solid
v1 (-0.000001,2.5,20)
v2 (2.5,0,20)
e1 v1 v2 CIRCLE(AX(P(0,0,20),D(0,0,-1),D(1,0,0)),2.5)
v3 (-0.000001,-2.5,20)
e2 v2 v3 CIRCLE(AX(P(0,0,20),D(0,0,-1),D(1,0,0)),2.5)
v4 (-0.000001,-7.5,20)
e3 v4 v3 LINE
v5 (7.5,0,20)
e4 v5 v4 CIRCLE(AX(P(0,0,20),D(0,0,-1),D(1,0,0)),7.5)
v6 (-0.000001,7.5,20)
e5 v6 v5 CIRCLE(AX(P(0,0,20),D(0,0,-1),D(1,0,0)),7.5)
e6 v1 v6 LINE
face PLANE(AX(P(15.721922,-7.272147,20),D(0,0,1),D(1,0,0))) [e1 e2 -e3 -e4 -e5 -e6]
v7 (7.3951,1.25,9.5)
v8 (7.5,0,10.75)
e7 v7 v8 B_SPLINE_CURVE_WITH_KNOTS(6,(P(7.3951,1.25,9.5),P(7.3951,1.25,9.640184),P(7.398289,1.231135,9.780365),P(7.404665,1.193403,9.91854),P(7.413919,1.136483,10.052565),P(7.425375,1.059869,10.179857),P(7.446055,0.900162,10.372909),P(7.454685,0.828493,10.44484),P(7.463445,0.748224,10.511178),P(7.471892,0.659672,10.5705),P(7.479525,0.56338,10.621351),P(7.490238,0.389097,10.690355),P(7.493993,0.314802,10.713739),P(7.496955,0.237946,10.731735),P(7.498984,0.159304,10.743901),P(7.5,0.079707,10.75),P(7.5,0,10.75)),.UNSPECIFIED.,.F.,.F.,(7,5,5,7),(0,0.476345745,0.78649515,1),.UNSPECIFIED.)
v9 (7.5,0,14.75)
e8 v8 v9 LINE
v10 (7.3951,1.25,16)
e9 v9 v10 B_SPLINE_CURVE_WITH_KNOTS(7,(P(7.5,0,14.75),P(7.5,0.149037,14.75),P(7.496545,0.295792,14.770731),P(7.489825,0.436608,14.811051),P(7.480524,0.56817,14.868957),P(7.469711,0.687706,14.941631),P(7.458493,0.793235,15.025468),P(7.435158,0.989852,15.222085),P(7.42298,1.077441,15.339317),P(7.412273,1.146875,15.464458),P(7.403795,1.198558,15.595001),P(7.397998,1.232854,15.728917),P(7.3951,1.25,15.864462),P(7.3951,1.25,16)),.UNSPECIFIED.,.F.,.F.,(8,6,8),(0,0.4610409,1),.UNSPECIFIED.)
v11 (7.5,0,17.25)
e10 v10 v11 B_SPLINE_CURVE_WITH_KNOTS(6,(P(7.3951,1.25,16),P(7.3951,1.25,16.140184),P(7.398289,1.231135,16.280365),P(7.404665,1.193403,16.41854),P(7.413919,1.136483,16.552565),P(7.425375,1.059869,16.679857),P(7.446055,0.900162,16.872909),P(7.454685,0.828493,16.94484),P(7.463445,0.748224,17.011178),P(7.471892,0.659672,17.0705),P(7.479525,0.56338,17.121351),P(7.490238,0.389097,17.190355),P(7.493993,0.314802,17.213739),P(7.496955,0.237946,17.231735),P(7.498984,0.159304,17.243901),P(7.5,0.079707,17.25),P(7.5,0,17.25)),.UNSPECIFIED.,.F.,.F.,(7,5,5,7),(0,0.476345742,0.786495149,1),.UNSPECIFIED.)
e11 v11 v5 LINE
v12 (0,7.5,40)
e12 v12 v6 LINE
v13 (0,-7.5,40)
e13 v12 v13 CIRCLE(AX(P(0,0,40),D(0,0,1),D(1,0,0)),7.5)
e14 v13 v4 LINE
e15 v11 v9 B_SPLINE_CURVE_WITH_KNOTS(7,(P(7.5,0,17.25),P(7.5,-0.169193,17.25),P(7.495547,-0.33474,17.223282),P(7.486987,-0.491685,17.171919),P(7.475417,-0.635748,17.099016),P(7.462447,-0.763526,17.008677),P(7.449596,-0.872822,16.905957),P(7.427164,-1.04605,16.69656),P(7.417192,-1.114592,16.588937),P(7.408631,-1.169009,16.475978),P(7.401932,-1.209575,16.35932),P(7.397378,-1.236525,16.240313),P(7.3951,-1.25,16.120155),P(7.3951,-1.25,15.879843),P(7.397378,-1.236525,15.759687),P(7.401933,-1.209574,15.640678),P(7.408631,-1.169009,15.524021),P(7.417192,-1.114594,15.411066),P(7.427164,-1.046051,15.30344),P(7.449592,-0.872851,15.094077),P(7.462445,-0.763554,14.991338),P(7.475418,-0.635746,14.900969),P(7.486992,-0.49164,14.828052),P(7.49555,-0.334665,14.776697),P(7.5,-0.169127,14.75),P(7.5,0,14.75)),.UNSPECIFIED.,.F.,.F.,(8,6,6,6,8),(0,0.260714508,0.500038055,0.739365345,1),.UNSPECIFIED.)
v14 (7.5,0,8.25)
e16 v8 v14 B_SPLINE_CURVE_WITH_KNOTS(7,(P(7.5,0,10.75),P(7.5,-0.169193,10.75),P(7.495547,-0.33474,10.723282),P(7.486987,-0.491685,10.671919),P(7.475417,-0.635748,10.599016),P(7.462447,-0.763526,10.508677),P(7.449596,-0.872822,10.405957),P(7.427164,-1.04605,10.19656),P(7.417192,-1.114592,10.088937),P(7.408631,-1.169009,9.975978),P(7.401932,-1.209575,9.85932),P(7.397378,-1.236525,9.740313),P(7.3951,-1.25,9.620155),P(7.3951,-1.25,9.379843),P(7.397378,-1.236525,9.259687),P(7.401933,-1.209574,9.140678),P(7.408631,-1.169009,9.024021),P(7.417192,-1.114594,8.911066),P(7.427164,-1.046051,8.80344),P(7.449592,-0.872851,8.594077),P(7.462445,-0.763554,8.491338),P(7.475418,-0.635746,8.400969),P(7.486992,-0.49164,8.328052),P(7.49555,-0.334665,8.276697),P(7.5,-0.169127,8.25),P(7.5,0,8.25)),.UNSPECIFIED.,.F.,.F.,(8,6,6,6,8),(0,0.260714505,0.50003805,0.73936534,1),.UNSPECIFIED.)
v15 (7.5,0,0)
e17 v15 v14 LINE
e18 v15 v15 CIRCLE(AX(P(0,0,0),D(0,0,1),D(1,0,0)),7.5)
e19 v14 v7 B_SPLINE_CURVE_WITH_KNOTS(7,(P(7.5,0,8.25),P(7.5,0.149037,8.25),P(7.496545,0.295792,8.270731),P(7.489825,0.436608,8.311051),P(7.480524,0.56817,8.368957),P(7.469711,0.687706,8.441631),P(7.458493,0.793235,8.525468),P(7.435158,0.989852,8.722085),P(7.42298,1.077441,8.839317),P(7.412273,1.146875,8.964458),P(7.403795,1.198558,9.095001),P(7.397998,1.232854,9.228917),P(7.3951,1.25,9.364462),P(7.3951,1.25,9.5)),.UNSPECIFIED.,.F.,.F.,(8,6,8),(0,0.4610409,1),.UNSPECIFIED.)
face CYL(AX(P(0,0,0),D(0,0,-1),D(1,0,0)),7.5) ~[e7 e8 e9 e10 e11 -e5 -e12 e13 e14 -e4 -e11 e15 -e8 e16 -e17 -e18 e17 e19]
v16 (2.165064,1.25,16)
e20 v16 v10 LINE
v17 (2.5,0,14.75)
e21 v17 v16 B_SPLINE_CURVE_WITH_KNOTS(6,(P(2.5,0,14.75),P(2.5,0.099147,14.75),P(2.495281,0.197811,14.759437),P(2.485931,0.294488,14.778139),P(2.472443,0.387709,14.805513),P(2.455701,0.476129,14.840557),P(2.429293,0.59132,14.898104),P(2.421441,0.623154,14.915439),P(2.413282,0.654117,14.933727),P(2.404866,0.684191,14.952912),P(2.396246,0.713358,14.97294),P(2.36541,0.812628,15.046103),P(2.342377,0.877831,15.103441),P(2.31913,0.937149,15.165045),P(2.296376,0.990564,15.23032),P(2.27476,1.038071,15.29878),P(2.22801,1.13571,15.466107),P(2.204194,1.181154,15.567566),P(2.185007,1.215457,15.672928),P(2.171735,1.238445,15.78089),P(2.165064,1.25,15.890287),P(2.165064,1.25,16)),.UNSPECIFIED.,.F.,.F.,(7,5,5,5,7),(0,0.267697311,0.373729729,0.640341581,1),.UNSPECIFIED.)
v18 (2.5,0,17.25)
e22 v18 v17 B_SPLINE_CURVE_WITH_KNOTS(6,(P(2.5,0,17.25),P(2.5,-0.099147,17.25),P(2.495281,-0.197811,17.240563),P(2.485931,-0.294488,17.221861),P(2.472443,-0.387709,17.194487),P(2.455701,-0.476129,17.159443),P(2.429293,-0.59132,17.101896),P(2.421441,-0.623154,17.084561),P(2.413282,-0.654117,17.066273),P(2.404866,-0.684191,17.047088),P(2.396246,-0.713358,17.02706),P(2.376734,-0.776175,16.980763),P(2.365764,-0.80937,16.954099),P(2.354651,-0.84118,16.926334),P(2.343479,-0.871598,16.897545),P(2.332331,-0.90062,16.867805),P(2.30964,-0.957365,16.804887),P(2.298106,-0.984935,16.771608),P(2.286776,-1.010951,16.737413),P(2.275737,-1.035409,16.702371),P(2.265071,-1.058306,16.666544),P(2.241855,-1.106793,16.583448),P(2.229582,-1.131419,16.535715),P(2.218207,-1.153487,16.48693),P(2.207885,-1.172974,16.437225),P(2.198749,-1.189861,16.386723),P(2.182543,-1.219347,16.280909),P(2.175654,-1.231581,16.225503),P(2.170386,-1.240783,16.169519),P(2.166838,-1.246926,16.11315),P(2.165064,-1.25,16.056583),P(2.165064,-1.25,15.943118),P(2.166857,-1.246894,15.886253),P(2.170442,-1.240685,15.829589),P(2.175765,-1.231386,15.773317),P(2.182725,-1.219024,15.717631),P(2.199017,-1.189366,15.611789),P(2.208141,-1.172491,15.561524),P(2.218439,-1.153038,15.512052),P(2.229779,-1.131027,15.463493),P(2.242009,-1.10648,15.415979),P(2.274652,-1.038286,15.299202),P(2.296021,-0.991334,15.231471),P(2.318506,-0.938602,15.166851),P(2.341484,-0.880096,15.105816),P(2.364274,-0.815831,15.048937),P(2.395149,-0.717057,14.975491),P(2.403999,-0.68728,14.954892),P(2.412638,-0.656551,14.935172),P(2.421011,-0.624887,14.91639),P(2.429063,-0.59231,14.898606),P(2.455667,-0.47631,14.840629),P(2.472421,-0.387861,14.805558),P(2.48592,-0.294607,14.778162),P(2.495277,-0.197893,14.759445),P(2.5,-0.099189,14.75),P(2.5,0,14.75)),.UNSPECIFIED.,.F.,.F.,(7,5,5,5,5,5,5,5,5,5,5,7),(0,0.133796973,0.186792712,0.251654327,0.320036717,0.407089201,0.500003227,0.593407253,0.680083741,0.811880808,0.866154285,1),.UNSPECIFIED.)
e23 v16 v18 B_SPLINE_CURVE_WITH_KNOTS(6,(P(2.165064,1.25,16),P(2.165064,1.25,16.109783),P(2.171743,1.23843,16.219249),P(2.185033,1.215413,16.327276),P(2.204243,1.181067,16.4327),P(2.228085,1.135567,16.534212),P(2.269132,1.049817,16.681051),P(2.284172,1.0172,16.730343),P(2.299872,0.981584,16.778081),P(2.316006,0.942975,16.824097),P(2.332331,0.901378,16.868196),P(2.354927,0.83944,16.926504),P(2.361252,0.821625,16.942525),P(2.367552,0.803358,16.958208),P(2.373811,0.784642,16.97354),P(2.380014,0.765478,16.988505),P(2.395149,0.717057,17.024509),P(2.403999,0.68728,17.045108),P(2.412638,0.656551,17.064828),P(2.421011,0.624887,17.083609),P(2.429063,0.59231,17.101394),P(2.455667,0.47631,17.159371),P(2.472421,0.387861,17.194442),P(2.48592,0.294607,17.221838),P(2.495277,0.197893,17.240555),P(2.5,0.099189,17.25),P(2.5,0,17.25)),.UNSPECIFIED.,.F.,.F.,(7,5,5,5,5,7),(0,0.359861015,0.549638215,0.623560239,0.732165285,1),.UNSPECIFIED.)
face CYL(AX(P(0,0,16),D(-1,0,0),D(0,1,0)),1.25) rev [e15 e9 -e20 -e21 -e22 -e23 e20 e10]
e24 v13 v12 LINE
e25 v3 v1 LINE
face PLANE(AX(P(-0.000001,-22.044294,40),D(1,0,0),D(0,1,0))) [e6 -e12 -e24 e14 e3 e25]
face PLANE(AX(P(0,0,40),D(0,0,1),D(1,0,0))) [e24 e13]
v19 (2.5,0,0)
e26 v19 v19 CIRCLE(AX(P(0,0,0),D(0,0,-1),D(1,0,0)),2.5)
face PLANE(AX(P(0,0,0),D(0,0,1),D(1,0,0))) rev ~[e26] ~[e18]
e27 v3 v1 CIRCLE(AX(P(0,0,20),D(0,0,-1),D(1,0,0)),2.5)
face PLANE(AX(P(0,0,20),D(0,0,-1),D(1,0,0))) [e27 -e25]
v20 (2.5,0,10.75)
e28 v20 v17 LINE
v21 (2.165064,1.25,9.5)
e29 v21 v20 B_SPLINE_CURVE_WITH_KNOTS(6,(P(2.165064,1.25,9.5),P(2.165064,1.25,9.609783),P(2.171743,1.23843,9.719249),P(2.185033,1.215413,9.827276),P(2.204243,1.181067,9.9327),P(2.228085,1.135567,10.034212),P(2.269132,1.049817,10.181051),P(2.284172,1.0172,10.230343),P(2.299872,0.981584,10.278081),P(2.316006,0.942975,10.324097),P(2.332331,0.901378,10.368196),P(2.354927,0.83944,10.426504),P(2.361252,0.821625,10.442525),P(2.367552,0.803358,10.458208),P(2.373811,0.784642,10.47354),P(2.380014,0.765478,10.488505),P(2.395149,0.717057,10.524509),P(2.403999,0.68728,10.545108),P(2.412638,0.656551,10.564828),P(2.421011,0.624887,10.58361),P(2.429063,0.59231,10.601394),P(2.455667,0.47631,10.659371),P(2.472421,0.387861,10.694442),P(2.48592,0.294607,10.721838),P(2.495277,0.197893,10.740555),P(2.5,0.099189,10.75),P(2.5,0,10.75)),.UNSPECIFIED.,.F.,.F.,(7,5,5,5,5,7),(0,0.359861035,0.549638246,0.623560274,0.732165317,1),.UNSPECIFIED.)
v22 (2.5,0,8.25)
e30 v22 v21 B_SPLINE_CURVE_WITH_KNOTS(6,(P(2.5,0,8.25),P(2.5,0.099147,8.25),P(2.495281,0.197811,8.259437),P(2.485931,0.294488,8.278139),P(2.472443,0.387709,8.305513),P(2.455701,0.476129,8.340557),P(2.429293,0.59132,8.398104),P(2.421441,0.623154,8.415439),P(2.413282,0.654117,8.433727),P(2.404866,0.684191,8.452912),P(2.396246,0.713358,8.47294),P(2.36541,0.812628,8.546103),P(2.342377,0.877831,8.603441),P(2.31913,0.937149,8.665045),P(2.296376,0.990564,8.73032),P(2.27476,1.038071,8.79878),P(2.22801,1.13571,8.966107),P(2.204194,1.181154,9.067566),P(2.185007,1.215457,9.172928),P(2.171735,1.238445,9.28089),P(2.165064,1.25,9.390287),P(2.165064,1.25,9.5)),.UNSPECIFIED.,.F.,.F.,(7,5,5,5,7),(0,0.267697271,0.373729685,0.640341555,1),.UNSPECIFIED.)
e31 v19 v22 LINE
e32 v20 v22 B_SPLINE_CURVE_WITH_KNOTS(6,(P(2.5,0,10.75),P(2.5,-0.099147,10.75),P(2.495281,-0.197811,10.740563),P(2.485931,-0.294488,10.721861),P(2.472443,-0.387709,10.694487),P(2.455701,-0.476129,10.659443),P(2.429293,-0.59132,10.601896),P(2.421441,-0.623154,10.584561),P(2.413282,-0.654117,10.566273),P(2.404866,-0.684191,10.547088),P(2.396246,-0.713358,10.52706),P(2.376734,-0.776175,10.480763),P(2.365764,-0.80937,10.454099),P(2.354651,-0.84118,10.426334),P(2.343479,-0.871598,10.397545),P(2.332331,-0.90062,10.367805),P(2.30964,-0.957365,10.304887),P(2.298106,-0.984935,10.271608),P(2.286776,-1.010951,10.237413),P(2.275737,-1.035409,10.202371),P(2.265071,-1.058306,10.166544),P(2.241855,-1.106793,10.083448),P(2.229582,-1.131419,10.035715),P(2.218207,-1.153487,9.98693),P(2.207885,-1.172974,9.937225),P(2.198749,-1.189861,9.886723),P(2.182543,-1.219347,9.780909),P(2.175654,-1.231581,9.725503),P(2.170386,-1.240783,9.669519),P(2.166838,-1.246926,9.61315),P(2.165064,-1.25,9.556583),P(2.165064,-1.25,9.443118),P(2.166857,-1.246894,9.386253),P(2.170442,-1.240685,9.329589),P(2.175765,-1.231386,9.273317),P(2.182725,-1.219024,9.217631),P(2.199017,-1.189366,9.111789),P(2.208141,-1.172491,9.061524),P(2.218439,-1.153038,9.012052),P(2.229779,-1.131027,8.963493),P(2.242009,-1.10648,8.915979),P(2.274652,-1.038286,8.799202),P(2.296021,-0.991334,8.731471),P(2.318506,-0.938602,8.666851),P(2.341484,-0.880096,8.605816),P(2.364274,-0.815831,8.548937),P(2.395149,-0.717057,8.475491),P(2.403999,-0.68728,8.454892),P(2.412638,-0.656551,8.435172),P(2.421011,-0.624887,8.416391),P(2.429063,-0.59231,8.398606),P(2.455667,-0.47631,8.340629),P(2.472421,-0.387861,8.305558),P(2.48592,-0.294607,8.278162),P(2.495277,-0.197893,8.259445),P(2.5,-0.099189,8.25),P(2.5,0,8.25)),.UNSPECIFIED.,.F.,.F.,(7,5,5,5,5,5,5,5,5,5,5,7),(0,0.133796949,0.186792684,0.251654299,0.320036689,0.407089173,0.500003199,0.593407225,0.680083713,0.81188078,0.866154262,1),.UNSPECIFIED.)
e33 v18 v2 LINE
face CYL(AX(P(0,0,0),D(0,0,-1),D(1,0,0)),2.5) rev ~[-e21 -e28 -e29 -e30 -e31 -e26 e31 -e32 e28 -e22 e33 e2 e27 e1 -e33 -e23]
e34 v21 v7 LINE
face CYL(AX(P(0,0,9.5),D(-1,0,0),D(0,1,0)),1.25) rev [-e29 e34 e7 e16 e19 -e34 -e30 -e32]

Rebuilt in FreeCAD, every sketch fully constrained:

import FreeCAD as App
import Part
import Sketcher
from FreeCAD import Vector
Q = App.Units.Quantity


def add_polygon(sketch, points):
    """Adds a closed chain of lines whose ends are joined by coincident constraints."""
    first, n = sketch.GeometryCount, len(points)
    for a, b in zip(points, points[1:] + points[:1]):
        sketch.addGeometry(Part.LineSegment(App.Vector(*a, 0), App.Vector(*b, 0)), False)
    for i in range(n):
        sketch.addConstraint(Sketcher.Constraint("Coincident", first + i, 2, first + (i + 1) % n, 1))

doc = App.newDocument("Part")
body = doc.addObject("PartDesign::Body", "Body")

sketch1 = doc.addObject("Sketcher::SketchObject", "Sketch")
body.addObject(sketch1)
sketch1.AttachmentSupport = (doc.XY_Plane, [""])
sketch1.MapMode = "FlatFace"
sketch1.addGeometry(Part.Circle(Vector(0, 0, 0), Vector(0, 0, 1), 8), False)
sketch1.addConstraint(Sketcher.Constraint("Coincident", 0, 3, -1, 1))
sketch1.addConstraint(Sketcher.Constraint("Diameter", 0, Q("15 mm")))
pad1 = doc.addObject("PartDesign::Pad", "Pad")
body.addObject(pad1)
pad1.Profile = sketch1
pad1.Length = 40

sketch2 = doc.addObject("Sketcher::SketchObject", "Sketch001")
body.addObject(sketch2)
sketch2.AttachmentSupport = (doc.XY_Plane, [""])
sketch2.MapMode = "FlatFace"
sketch2.AttachmentOffset = App.Placement(Vector(0, 0, 40), App.Rotation())
add_polygon(sketch2, [(0, 8), (0, -22), (31, -22), (31, 8)])
sketch2.addConstraint(Sketcher.Constraint("Vertical", 0))
sketch2.addConstraint(Sketcher.Constraint("Horizontal", 1))
sketch2.addConstraint(Sketcher.Constraint("Vertical", 2))
sketch2.addConstraint(Sketcher.Constraint("Horizontal", 3))
sketch2.addConstraint(Sketcher.Constraint("PointOnObject", 0, 2, -2))
sketch2.addConstraint(Sketcher.Constraint("DistanceY", -1, 1, 2, 2, Q("7.5 mm")))
sketch2.addConstraint(Sketcher.Constraint("DistanceX", 1, 1, 1, 2, Q("31.443845 mm")))
sketch2.addConstraint(Sketcher.Constraint("DistanceY", 0, 2, 0, 1, Q("29.544295 mm")))
pocket1 = doc.addObject("PartDesign::Pocket", "Pocket")
body.addObject(pocket1)
pocket1.Profile = sketch2
pocket1.Length = 20

sketch3 = doc.addObject("Sketcher::SketchObject", "Sketch002")
body.addObject(sketch3)
sketch3.AttachmentSupport = (doc.XY_Plane, [""])
sketch3.MapMode = "FlatFace"
sketch3.addGeometry(Part.Circle(Vector(0, 0, 0), Vector(0, 0, 1), 2.5), False)
sketch3.addConstraint(Sketcher.Constraint("Coincident", 0, 3, -1, 1))
sketch3.addConstraint(Sketcher.Constraint("Diameter", 0, Q("5 mm")))
pocket2 = doc.addObject("PartDesign::Pocket", "Pocket001")
body.addObject(pocket2)
pocket2.Profile = sketch3
pocket2.Length = 20
pocket2.Reversed = True

sketch4 = doc.addObject("Sketcher::SketchObject", "Sketch003")
body.addObject(sketch4)
sketch4.AttachmentSupport = (doc.YZ_Plane, [""])
sketch4.MapMode = "FlatFace"
sketch4.addGeometry(Part.Circle(Vector(0, 16, 0), Vector(0, 0, 1), 1.2), False)
sketch4.addGeometry(Part.Circle(Vector(0, 9.5, 0), Vector(0, 0, 1), 1.2), False)
sketch4.addConstraint(Sketcher.Constraint("Equal", 0, 1))
sketch4.addConstraint(Sketcher.Constraint("PointOnObject", 0, 3, -2))
sketch4.addConstraint(Sketcher.Constraint("PointOnObject", 1, 3, -2))
sketch4.addConstraint(Sketcher.Constraint("Diameter", 0, Q("2.5 mm")))
sketch4.addConstraint(Sketcher.Constraint("DistanceY", -1, 1, 0, 3, Q("16 mm")))
sketch4.addConstraint(Sketcher.Constraint("DistanceY", -1, 1, 1, 3, Q("9.5 mm")))
pocket3 = doc.addObject("PartDesign::Pocket", "Pocket002")
body.addObject(pocket3)
pocket3.Profile = sketch4
pocket3.Length = 15
pocket3.Reversed = True

doc.recompute()
